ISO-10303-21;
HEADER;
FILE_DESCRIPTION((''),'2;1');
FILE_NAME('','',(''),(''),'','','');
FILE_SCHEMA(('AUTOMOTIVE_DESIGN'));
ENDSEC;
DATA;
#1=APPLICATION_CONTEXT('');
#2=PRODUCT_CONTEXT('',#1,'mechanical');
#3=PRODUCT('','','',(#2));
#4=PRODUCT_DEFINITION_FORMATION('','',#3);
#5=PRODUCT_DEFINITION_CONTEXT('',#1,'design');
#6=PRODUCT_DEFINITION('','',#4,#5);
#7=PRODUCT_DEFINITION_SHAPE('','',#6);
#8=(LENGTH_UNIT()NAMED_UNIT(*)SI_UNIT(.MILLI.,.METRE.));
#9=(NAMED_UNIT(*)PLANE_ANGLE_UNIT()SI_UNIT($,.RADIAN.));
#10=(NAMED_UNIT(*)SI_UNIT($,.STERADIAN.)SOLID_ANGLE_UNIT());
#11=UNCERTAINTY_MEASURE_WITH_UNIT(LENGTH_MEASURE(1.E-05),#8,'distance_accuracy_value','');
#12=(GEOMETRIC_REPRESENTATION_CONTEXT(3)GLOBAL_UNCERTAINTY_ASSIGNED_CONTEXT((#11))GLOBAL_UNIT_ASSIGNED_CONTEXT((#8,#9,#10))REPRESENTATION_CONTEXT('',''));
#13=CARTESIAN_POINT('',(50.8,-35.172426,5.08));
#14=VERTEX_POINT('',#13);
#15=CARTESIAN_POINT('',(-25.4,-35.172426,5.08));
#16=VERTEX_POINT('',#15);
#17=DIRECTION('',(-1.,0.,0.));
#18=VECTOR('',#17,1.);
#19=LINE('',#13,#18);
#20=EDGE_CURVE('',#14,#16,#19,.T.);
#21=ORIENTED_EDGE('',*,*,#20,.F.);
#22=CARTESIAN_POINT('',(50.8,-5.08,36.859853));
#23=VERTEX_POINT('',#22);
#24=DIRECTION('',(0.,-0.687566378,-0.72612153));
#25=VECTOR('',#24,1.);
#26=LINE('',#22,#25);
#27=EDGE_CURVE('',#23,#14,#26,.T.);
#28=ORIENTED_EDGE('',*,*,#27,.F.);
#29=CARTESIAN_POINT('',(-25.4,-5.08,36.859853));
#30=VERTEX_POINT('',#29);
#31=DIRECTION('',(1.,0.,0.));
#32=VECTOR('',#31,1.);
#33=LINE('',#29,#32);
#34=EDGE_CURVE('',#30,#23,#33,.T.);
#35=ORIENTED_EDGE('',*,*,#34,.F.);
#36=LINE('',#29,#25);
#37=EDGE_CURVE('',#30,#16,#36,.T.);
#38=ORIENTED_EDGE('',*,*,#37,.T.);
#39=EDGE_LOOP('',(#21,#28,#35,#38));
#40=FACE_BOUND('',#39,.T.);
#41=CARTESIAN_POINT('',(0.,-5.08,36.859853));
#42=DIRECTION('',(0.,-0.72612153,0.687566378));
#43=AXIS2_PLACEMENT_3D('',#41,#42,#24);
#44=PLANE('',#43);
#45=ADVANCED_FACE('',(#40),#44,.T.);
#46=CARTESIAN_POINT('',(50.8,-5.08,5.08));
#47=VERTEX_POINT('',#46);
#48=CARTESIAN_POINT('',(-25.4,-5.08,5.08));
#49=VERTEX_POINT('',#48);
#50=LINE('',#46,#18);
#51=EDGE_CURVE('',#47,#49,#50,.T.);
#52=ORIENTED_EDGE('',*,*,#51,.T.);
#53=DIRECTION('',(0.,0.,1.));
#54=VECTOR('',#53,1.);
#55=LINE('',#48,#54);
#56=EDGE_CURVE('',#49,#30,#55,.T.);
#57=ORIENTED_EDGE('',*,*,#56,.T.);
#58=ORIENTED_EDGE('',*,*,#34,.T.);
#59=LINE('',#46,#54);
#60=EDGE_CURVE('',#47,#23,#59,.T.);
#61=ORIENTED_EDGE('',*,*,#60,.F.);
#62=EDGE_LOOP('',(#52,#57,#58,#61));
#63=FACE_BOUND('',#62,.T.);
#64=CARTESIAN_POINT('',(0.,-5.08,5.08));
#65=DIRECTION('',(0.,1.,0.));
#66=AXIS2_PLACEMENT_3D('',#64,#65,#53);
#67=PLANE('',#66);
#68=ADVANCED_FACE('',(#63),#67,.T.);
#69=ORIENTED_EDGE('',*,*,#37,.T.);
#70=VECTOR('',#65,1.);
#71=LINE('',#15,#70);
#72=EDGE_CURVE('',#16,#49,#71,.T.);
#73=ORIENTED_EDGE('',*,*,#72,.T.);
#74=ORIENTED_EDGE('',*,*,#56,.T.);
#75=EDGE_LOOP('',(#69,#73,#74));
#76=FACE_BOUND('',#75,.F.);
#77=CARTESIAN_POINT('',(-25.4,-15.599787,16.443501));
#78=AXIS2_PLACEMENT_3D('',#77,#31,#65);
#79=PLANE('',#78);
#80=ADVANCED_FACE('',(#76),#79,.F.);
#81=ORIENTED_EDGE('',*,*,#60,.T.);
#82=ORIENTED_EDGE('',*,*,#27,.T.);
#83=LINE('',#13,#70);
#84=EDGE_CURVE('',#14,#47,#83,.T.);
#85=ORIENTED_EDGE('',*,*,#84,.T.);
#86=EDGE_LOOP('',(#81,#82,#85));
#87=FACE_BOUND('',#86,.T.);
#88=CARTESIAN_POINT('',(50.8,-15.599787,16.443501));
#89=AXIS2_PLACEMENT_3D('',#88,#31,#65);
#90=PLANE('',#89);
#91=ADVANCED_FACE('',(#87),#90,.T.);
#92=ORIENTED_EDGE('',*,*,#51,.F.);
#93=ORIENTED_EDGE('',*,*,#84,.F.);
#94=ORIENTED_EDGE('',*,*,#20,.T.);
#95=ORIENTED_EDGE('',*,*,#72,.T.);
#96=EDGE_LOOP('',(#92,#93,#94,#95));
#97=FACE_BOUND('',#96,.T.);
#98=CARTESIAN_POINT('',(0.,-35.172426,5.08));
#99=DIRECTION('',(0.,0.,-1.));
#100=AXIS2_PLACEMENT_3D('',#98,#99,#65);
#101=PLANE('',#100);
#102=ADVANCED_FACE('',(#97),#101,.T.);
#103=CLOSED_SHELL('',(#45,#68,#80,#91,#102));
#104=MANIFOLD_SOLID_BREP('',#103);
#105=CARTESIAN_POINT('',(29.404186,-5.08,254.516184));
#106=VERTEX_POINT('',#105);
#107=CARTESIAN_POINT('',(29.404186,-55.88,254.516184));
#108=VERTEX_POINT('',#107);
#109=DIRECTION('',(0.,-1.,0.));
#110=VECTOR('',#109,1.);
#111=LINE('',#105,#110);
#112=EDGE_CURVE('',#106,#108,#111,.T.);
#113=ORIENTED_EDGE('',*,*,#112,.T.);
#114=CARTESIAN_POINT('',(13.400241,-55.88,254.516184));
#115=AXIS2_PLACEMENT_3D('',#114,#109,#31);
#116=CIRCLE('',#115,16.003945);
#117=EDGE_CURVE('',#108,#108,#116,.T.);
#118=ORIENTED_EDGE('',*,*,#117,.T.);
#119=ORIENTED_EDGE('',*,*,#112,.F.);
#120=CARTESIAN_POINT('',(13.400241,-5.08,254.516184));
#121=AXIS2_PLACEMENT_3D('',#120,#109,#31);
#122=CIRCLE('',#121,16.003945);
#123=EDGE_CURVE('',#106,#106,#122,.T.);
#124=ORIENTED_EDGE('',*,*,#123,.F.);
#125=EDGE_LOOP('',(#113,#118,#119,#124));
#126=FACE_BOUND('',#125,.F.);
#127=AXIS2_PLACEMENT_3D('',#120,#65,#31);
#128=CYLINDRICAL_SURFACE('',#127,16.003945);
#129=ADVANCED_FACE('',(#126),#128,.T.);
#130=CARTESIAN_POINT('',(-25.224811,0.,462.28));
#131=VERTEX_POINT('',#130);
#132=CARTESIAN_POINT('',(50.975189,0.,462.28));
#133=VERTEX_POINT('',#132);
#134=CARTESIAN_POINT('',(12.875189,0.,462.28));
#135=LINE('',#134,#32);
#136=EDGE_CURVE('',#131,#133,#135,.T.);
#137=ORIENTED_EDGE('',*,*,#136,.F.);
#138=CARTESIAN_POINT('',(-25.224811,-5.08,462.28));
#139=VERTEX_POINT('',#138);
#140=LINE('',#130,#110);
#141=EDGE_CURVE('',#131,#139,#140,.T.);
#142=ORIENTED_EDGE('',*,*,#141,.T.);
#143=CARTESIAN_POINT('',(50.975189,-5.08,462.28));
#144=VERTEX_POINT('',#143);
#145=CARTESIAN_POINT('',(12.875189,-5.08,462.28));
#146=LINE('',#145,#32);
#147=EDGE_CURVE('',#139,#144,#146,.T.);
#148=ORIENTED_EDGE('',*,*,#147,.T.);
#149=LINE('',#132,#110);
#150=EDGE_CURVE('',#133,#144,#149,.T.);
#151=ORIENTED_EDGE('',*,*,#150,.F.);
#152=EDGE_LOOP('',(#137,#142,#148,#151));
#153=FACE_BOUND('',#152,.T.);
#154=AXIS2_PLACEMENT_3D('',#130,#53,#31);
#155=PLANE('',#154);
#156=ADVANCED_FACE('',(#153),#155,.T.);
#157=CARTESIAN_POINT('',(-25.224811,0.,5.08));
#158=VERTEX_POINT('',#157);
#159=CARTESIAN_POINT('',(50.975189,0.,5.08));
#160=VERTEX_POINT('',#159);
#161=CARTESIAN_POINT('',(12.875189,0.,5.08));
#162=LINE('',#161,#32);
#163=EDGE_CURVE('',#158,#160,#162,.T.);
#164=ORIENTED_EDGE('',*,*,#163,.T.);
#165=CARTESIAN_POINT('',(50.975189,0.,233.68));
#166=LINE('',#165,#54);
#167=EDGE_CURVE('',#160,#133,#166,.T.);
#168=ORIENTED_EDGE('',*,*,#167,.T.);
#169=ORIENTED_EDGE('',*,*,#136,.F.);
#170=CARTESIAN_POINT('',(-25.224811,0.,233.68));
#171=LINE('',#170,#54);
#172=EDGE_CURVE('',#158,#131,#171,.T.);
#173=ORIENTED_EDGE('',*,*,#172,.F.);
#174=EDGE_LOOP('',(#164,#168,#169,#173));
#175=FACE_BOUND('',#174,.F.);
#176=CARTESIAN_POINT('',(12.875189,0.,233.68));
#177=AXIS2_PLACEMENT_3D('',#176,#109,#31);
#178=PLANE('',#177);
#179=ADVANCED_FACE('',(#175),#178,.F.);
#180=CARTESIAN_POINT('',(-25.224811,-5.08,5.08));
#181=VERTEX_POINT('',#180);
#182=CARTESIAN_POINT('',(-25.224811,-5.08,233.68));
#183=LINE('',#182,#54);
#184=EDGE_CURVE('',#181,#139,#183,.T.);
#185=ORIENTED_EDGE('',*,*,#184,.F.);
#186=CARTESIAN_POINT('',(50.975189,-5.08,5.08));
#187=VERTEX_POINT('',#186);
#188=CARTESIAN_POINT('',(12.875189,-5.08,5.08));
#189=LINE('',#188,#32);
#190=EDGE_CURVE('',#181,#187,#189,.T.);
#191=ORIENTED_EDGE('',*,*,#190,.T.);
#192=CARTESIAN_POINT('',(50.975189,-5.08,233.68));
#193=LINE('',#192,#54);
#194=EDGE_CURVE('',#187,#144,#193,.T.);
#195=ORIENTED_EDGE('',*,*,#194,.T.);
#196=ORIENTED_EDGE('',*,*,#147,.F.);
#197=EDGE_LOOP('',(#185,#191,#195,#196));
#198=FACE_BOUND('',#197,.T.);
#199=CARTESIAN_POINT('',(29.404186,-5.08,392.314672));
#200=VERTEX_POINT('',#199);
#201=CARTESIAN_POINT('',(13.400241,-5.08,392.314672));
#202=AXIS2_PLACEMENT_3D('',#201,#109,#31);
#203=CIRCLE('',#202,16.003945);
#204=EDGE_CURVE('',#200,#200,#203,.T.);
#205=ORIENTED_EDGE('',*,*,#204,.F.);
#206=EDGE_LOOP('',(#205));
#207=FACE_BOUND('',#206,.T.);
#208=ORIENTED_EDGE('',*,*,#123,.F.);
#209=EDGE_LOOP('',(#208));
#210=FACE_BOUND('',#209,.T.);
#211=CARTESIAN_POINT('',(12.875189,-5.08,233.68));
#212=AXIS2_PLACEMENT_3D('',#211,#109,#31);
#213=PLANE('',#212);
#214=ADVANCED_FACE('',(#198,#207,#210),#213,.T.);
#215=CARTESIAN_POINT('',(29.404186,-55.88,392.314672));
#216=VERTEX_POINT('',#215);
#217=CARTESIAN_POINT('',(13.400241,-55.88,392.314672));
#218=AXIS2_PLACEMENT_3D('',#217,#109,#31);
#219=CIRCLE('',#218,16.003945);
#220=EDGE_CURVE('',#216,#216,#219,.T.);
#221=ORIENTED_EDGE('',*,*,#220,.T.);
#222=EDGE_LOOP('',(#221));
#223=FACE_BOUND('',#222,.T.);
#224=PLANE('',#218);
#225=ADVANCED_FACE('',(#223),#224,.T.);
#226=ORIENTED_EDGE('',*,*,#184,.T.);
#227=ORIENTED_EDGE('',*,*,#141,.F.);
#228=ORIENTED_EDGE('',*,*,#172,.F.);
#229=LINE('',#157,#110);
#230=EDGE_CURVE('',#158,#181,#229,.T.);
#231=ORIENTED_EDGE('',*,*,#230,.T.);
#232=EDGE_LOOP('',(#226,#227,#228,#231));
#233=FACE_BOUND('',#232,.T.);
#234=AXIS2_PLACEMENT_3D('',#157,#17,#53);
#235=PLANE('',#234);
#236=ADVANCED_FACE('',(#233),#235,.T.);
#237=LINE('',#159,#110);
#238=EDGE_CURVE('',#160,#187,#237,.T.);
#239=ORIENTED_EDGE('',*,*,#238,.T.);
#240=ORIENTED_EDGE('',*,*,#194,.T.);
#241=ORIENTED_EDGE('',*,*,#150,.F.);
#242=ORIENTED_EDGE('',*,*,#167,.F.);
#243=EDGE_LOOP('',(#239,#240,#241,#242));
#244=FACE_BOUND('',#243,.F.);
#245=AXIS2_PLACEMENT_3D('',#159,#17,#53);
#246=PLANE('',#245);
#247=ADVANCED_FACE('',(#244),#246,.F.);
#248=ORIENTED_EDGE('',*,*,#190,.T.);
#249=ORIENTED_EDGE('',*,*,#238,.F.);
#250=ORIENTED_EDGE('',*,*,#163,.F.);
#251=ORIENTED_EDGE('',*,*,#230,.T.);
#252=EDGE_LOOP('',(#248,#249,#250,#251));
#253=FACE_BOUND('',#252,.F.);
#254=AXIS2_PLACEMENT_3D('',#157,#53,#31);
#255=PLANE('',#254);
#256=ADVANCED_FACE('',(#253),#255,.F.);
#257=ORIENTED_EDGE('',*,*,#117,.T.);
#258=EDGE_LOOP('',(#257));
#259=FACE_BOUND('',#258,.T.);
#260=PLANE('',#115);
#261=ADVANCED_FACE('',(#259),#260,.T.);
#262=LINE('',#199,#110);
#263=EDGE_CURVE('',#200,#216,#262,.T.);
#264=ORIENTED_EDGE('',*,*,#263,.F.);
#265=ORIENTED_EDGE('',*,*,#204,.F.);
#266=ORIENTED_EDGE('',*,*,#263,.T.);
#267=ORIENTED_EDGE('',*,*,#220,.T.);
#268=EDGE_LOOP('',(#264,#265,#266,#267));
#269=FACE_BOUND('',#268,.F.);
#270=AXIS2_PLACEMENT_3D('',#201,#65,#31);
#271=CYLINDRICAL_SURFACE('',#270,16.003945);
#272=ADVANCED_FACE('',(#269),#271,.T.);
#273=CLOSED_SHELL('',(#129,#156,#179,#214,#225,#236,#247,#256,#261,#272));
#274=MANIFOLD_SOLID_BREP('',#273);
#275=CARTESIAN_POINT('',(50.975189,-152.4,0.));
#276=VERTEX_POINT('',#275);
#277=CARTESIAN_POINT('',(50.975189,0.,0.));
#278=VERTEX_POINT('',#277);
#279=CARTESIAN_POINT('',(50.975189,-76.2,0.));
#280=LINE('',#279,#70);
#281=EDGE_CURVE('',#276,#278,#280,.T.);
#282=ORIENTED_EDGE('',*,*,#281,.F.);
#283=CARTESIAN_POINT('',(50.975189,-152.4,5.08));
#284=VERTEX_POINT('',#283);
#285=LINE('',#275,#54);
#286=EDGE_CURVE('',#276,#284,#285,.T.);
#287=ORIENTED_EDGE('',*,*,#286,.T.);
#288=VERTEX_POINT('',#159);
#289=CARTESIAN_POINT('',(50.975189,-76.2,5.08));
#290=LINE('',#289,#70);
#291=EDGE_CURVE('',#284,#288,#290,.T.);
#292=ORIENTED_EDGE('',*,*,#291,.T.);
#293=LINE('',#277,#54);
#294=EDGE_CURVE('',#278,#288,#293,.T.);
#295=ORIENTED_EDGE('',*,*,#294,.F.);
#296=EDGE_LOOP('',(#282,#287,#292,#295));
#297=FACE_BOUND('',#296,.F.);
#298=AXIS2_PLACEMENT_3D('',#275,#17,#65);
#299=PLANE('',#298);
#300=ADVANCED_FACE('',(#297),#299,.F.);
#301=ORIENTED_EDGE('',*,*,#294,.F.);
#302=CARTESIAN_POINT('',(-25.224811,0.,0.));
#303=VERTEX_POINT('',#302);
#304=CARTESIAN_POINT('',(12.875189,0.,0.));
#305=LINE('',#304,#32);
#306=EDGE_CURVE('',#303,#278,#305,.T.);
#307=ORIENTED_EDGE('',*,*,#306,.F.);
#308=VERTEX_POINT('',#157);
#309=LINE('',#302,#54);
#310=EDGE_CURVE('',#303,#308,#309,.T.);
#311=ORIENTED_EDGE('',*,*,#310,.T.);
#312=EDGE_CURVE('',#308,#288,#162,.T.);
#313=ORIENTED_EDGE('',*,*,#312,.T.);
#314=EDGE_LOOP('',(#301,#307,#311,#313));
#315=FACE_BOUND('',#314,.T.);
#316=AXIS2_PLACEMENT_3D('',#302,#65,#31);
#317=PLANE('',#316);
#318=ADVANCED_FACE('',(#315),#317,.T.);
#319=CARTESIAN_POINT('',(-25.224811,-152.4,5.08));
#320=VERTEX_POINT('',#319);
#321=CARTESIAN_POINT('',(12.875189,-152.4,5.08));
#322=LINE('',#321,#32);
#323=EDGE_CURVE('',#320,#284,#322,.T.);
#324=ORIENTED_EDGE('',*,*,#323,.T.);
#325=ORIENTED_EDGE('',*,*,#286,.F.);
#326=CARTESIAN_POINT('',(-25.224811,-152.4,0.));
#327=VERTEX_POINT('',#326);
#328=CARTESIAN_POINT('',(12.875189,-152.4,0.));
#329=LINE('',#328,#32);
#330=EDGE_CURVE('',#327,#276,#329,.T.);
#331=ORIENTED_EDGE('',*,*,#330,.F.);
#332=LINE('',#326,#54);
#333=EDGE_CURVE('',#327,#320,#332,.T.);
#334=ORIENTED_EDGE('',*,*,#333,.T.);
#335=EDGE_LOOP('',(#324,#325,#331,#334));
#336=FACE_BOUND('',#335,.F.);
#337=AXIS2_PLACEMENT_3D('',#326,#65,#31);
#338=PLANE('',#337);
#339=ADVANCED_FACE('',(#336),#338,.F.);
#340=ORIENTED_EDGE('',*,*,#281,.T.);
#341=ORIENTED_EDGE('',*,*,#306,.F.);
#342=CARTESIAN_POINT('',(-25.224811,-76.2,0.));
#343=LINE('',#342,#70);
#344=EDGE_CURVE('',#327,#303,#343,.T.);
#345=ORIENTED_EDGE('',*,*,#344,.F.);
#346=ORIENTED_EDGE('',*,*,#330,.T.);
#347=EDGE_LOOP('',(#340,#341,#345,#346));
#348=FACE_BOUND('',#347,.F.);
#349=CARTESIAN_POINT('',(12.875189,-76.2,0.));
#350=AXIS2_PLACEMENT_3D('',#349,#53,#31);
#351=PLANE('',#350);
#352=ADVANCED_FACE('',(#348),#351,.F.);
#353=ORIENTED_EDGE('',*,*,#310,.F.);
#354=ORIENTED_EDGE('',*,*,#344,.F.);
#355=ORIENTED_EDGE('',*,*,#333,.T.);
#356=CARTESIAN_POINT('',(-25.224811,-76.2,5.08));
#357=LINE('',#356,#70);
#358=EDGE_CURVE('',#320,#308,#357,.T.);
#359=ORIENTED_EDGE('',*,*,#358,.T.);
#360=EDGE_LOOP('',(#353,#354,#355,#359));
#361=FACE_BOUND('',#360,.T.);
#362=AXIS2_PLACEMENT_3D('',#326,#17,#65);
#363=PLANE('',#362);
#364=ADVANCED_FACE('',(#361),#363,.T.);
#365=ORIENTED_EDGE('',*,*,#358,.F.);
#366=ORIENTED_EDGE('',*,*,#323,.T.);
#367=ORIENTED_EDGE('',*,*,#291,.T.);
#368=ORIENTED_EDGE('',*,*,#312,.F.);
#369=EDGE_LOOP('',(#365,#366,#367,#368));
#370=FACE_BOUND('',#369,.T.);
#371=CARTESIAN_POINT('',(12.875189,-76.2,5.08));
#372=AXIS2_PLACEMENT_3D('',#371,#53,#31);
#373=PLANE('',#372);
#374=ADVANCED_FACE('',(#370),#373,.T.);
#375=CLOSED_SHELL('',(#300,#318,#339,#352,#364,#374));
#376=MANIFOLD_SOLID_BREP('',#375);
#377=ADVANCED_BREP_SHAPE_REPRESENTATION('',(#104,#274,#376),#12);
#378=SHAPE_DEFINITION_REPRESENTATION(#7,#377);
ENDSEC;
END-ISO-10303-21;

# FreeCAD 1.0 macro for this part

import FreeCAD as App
import Part
import Sketcher
Q = App.Units.Quantity


def add_polygon(sketch, points):
    """Adds a closed chain of lines whose ends are joined by coincident constraints."""
    first, n = sketch.GeometryCount, len(points)
    for a, b in zip(points, points[1:] + points[:1]):
        sketch.addGeometry(Part.LineSegment(App.Vector(*a, 0), App.Vector(*b, 0)), False)
    for i in range(n):
        sketch.addConstraint(Sketcher.Constraint("Coincident", first + i, 2, first + (i + 1) % n, 1))

doc = App.newDocument("Part")
body = doc.addObject("PartDesign::Body", "Body")

# Sketch on XY plane
sketch1 = doc.addObject("Sketcher::SketchObject", "Sketch")
body.addObject(sketch1)
sketch1.AttachmentSupport = (doc.XY_Plane, [""])
sketch1.MapMode = "FlatFace"
add_polygon(sketch1, [(-25, 0), (-25, -152), (51, -152), (51, 0)])  # lines 0-3
sketch1.addConstraint([
    Sketcher.Constraint("Vertical", 0),
    Sketcher.Constraint("Horizontal", 1),
    Sketcher.Constraint("Vertical", 2),
    Sketcher.Constraint("Horizontal", 3),
    Sketcher.Constraint("PointOnObject", 2, 2, -1),
    Sketcher.Constraint("DistanceX", 1, 1, 1, 2, Q("3 in")),
    Sketcher.Constraint("DistanceY", 0, 2, 0, 1, Q("6 in")),
    Sketcher.Constraint("DistanceX", 0, 2, -1, 1, 25.224811),
])
pad1 = doc.addObject("PartDesign::Pad", "Pad")
body.addObject(pad1)
pad1.Profile = sketch1
pad1.Length = Q("0.2 in")
body2 = doc.addObject("PartDesign::Body", "Body001")

# Sketch on XZ plane
sketch2 = doc.addObject("Sketcher::SketchObject", "Sketch001")
body2.addObject(sketch2)
sketch2.AttachmentSupport = (doc.getObject("XZ_Plane001"), [""])
sketch2.MapMode = "FlatFace"
add_polygon(sketch2, [(-25, 462), (-25, 5), (51, 5), (51, 462)])  # lines 0-3
sketch2.addConstraint([
    Sketcher.Constraint("Vertical", 0),
    Sketcher.Constraint("Horizontal", 1),
    Sketcher.Constraint("Vertical", 2),
    Sketcher.Constraint("Horizontal", 3),
    Sketcher.Constraint("DistanceX", 1, 1, 1, 2, Q("3 in")),
    Sketcher.Constraint("DistanceY", 0, 2, 0, 1, Q("18 in")),
    Sketcher.Constraint("DistanceY", -1, 1, 0, 2, Q("0.2 in")),
    Sketcher.Constraint("DistanceX", 0, 2, -1, 1, 25.224811),
])
pad2 = doc.addObject("PartDesign::Pad", "Pad001")
body2.addObject(pad2)
pad2.Profile = sketch2
pad2.Length = Q("0.2 in")

# Sketch on XZ plane
sketch3 = doc.addObject("Sketcher::SketchObject", "Sketch002")
body2.addObject(sketch3)
sketch3.AttachmentSupport = (doc.getObject("XZ_Plane001"), [""])
sketch3.MapMode = "FlatFace"
sketch3.AttachmentOffset = App.Placement(App.Vector(0, 0, 0.2 * 25.4), App.Rotation())
sketch3.addGeometry([
    Part.Circle(App.Vector(13, 392, 0), App.Vector(0, 0, 1), 16),
    Part.Circle(App.Vector(13, 255, 0), App.Vector(0, 0, 1), 16),
], False)
sketch3.addConstraint([
    Sketcher.Constraint("Equal", 0, 1),
    Sketcher.Constraint("Vertical", 0, 3, 1, 3),
    Sketcher.Constraint("Diameter", 0, 32.00789),
    Sketcher.Constraint("DistanceX", -1, 1, 0, 3, 13.400241),
    Sketcher.Constraint("DistanceY", -1, 1, 0, 3, 392.314672),
    Sketcher.Constraint("DistanceY", -1, 1, 1, 3, 254.516184),
])
pad3 = doc.addObject("PartDesign::Pad", "Pad002")
body2.addObject(pad3)
pad3.Profile = sketch3
pad3.Length = Q("2 in")
body3 = doc.addObject("PartDesign::Body", "Body002")

# Sketch on YZ plane
sketch4 = doc.addObject("Sketcher::SketchObject", "Sketch003")
body3.addObject(sketch4)
sketch4.AttachmentSupport = (doc.getObject("YZ_Plane002"), [""])
sketch4.MapMode = "FlatFace"
add_polygon(sketch4, [(-5, 5), (-5, 37), (-35, 5)])  # lines 0-2
sketch4.addConstraint([
    Sketcher.Constraint("Vertical", 0),
    Sketcher.Constraint("Horizontal", 2),
    Sketcher.Constraint("DistanceX", 0, 2, -1, 1, Q("0.2 in")),
    Sketcher.Constraint("DistanceY", -1, 1, 1, 2, Q("0.2 in")),
    Sketcher.Constraint("DistanceX", 2, 1, 2, 2, 30.092426),
    Sketcher.Constraint("DistanceY", 0, 1, 0, 2, 31.779853),
])
pad4 = doc.addObject("PartDesign::Pad", "Pad003")
body3.addObject(pad4)
pad4.Profile = sketch4
pad4.Type = "TwoLengths"
pad4.Length = Q("2 in")
pad4.Length2 = Q("1 in")

doc.recompute()
